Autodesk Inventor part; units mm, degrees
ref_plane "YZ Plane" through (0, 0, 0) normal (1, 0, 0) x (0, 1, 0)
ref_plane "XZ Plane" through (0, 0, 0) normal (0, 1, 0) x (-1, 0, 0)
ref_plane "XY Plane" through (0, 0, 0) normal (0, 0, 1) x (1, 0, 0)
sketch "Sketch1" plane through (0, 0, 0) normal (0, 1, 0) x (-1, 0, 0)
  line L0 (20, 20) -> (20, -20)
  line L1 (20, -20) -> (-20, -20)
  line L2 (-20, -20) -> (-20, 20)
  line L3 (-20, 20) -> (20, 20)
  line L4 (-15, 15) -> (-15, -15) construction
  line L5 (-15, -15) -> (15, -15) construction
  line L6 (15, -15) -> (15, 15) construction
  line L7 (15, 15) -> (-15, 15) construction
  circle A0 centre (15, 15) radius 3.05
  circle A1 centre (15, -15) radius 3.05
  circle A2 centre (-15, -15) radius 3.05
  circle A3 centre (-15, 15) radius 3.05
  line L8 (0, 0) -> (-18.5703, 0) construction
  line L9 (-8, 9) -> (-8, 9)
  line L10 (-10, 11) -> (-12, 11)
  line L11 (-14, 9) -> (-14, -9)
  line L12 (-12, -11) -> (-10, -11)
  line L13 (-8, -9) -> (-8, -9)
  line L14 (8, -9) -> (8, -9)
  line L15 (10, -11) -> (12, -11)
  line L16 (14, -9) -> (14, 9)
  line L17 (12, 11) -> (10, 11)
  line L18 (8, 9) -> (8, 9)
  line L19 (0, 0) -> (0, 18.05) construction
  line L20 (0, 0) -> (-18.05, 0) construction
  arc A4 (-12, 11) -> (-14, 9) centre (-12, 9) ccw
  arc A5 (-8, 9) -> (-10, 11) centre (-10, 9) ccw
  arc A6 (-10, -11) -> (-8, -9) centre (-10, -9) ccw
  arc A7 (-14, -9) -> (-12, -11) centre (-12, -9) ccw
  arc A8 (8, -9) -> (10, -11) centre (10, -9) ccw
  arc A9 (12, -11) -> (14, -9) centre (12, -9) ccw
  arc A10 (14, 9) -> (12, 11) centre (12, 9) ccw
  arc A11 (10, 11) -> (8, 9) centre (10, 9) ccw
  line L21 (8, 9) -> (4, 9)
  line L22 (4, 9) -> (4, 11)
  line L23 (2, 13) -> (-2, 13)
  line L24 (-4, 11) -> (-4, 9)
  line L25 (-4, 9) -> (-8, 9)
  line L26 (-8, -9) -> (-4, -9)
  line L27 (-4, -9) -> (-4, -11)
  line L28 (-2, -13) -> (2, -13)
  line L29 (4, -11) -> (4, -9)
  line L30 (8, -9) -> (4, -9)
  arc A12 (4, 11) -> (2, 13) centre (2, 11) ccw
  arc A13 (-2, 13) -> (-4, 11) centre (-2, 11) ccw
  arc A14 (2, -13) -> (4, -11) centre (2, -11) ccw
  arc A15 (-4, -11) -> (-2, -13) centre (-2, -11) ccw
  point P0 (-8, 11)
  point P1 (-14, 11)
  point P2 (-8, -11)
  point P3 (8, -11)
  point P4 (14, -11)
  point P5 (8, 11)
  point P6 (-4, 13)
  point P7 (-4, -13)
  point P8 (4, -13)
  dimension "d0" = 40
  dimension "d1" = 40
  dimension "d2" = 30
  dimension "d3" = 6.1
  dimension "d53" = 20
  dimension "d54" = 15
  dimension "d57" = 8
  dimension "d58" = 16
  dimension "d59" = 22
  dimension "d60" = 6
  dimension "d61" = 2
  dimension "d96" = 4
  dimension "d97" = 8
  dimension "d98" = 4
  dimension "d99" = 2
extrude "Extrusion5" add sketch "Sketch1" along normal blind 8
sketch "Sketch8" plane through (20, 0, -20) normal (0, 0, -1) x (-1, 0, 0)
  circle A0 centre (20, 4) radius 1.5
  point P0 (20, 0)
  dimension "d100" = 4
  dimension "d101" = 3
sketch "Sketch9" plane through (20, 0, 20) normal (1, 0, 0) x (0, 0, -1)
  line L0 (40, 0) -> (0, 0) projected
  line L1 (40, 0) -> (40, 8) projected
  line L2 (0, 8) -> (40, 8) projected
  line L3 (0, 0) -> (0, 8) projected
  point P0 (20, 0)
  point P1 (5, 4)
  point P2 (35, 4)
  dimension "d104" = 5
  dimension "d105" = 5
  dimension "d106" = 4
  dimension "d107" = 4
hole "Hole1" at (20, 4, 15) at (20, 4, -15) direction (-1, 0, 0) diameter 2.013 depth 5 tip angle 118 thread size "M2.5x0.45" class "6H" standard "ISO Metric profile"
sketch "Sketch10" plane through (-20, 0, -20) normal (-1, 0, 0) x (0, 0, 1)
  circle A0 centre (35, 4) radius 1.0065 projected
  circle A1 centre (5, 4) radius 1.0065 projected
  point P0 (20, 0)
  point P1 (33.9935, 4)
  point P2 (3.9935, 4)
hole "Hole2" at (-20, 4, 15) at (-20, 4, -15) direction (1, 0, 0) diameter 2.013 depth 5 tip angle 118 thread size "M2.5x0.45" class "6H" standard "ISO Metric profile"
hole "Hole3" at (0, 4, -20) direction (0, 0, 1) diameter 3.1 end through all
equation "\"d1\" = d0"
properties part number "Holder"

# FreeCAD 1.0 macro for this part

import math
import FreeCAD as App
import Part
import Sketcher

V = App.Vector


def add_polygon(sketch, points):
    """Adds a closed chain of lines whose ends are joined by coincident constraints."""
    first, n = sketch.GeometryCount, len(points)
    for a, b in zip(points, points[1:] + points[:1]):
        sketch.addGeometry(Part.LineSegment(App.Vector(*a, 0), App.Vector(*b, 0)), False)
    for i in range(n):
        sketch.addConstraint(Sketcher.Constraint("Coincident", first + i, 2, first + (i + 1) % n, 1))

doc = App.newDocument("Part")
body = doc.addObject("PartDesign::Body", "Body")

# Sketch on XZ plane
sketch1 = body.newObject("Sketcher::SketchObject", "Sketch")
sketch1.AttachmentSupport = (doc.getObject("XZ_Plane"), [""])
sketch1.MapMode = "FlatFace"
add_polygon(sketch1, [(-20, -20), (-20, 20), (20, 20), (20, -20)])  # lines 0-3
sketch1.addGeometry(Part.Circle(V(15, -15, 0), V(0, 0, 1), 3), False)  # 4
sketch1.addGeometry(Part.Circle(V(-15, -15, 0), V(0, 0, 1), 3), False)  # 5
sketch1.addGeometry(Part.Circle(V(15, 15, 0), V(0, 0, 1), 3), False)  # 6
sketch1.addGeometry(Part.LineSegment(V(12, 11, 0), V(10, 11, 0)), False)  # 7
sketch1.addGeometry(Part.ArcOfCircle(Part.Circle(V(10, 9, 0), V(0, 0, 1), 2), math.radians(90), math.radians(180)), False)  # 8
sketch1.addGeometry(Part.LineSegment(V(8, 9, 0), V(4, 9, 0)), False)  # 9
sketch1.addGeometry(Part.LineSegment(V(4, 9, 0), V(4, 11, 0)), False)  # 10
sketch1.addGeometry(Part.ArcOfCircle(Part.Circle(V(2, 11, 0), V(0, 0, 1), 2), math.radians(0), math.radians(90)), False)  # 11
sketch1.addGeometry(Part.LineSegment(V(2, 13, 0), V(-2, 13, 0)), False)  # 12
sketch1.addGeometry(Part.ArcOfCircle(Part.Circle(V(-2, 11, 0), V(0, 0, 1), 2), math.radians(90), math.radians(180)), False)  # 13
sketch1.addGeometry(Part.LineSegment(V(-4, 11, 0), V(-4, 9, 0)), False)  # 14
sketch1.addGeometry(Part.LineSegment(V(-4, 9, 0), V(-8, 9, 0)), False)  # 15
sketch1.addGeometry(Part.ArcOfCircle(Part.Circle(V(-10, 9, 0), V(0, 0, 1), 2), math.radians(0), math.radians(90)), False)  # 16
sketch1.addGeometry(Part.LineSegment(V(-10, 11, 0), V(-12, 11, 0)), False)  # 17
sketch1.addGeometry(Part.ArcOfCircle(Part.Circle(V(-12, 9, 0), V(0, 0, 1), 2), math.radians(90), math.radians(180)), False)  # 18
sketch1.addGeometry(Part.LineSegment(V(-14, 9, 0), V(-14, -9, 0)), False)  # 19
sketch1.addGeometry(Part.ArcOfCircle(Part.Circle(V(-12, -9, 0), V(0, 0, 1), 2), math.radians(180), math.radians(270)), False)  # 20
sketch1.addGeometry(Part.LineSegment(V(-12, -11, 0), V(-10, -11, 0)), False)  # 21
sketch1.addGeometry(Part.ArcOfCircle(Part.Circle(V(-10, -9, 0), V(0, 0, 1), 2), math.radians(-90), math.radians(0)), False)  # 22
sketch1.addGeometry(Part.LineSegment(V(-8, -9, 0), V(-4, -9, 0)), False)  # 23
sketch1.addGeometry(Part.LineSegment(V(-4, -9, 0), V(-4, -11, 0)), False)  # 24
sketch1.addGeometry(Part.ArcOfCircle(Part.Circle(V(-2, -11, 0), V(0, 0, 1), 2), math.radians(180), math.radians(270)), False)  # 25
sketch1.addGeometry(Part.LineSegment(V(-2, -13, 0), V(2, -13, 0)), False)  # 26
sketch1.addGeometry(Part.ArcOfCircle(Part.Circle(V(2, -11, 0), V(0, 0, 1), 2), math.radians(-90), math.radians(0)), False)  # 27
sketch1.addGeometry(Part.LineSegment(V(4, -11, 0), V(4, -9, 0)), False)  # 28
sketch1.addGeometry(Part.LineSegment(V(4, -9, 0), V(8, -9, 0)), False)  # 29
sketch1.addGeometry(Part.ArcOfCircle(Part.Circle(V(10, -9, 0), V(0, 0, 1), 2), math.radians(180), math.radians(270)), False)  # 30
sketch1.addGeometry(Part.LineSegment(V(10, -11, 0), V(12, -11, 0)), False)  # 31
sketch1.addGeometry(Part.ArcOfCircle(Part.Circle(V(12, -9, 0), V(0, 0, 1), 2), math.radians(-90), math.radians(0)), False)  # 32
sketch1.addGeometry(Part.LineSegment(V(14, -9, 0), V(14, 9, 0)), False)  # 33
sketch1.addGeometry(Part.ArcOfCircle(Part.Circle(V(12, 9, 0), V(0, 0, 1), 2), math.radians(0), math.radians(90)), False)  # 34
sketch1.addGeometry(Part.Circle(V(-15, 15, 0), V(0, 0, 1), 3), False)  # 35
sketch1.addConstraint([
    Sketcher.Constraint("Tangent", 7, 2, 8, 1),
    Sketcher.Constraint("Coincident", 8, 2, 9, 1),
    Sketcher.Constraint("Coincident", 9, 2, 10, 1),
    Sketcher.Constraint("Tangent", 10, 2, 11, 1),
    Sketcher.Constraint("Tangent", 11, 2, 12, 1),
    Sketcher.Constraint("Tangent", 12, 2, 13, 1),
    Sketcher.Constraint("Tangent", 13, 2, 14, 1),
    Sketcher.Constraint("Coincident", 14, 2, 15, 1),
    Sketcher.Constraint("Coincident", 15, 2, 16, 1),
    Sketcher.Constraint("Tangent", 16, 2, 17, 1),
    Sketcher.Constraint("Tangent", 17, 2, 18, 1),
    Sketcher.Constraint("Tangent", 18, 2, 19, 1),
    Sketcher.Constraint("Tangent", 19, 2, 20, 1),
    Sketcher.Constraint("Tangent", 20, 2, 21, 1),
    Sketcher.Constraint("Tangent", 21, 2, 22, 1),
    Sketcher.Constraint("Coincident", 22, 2, 23, 1),
    Sketcher.Constraint("Coincident", 23, 2, 24, 1),
    Sketcher.Constraint("Tangent", 24, 2, 25, 1),
    Sketcher.Constraint("Tangent", 25, 2, 26, 1),
    Sketcher.Constraint("Tangent", 26, 2, 27, 1),
    Sketcher.Constraint("Tangent", 27, 2, 28, 1),
    Sketcher.Constraint("Coincident", 28, 2, 29, 1),
    Sketcher.Constraint("Coincident", 29, 2, 30, 1),
    Sketcher.Constraint("Tangent", 30, 2, 31, 1),
    Sketcher.Constraint("Tangent", 31, 2, 32, 1),
    Sketcher.Constraint("Tangent", 32, 2, 33, 1),
    Sketcher.Constraint("Tangent", 33, 2, 34, 1),
    Sketcher.Constraint("Tangent", 34, 2, 7, 1),
    Sketcher.Constraint("Vertical", 0),
    Sketcher.Constraint("Horizontal", 1),
    Sketcher.Constraint("Vertical", 2),
    Sketcher.Constraint("Horizontal", 3),
    Sketcher.Constraint("Horizontal", 7),
    Sketcher.Constraint("Horizontal", 9),
    Sketcher.Constraint("Vertical", 10),
    Sketcher.Constraint("Horizontal", 12),
    Sketcher.Constraint("Vertical", 14),
    Sketcher.Constraint("Horizontal", 15),
    Sketcher.Constraint("Horizontal", 17),
    Sketcher.Constraint("Vertical", 19),
    Sketcher.Constraint("Horizontal", 21),
    Sketcher.Constraint("Horizontal", 23),
    Sketcher.Constraint("Vertical", 24),
    Sketcher.Constraint("Horizontal", 26),
    Sketcher.Constraint("Vertical", 28),
    Sketcher.Constraint("Horizontal", 29),
    Sketcher.Constraint("Horizontal", 31),
    Sketcher.Constraint("Vertical", 33),
    Sketcher.Constraint("Equal", 4, 5),
    Sketcher.Constraint("Equal", 5, 6),
    Sketcher.Constraint("Equal", 8, 11),
    Sketcher.Constraint("Equal", 11, 13),
    Sketcher.Constraint("Equal", 13, 16),
    Sketcher.Constraint("Equal", 16, 18),
    Sketcher.Constraint("Equal", 18, 20),
    Sketcher.Constraint("Equal", 20, 22),
    Sketcher.Constraint("Equal", 22, 25),
    Sketcher.Constraint("Equal", 25, 27),
    Sketcher.Constraint("Equal", 27, 30),
    Sketcher.Constraint("Equal", 30, 32),
    Sketcher.Constraint("Equal", 32, 34),
    Sketcher.Constraint("Equal", 6, 35),
    Sketcher.Constraint("Symmetric", 5, 3, 6, 3, -1, 1),
    Sketcher.Constraint("Symmetric", 8, 3, 22, 3, -1, 1),
    Sketcher.Constraint("Symmetric", 11, 3, 25, 3, -1, 1),
    Sketcher.Constraint("Symmetric", 16, 3, 30, 3, -1, 1),
    Sketcher.Constraint("Symmetric", 4, 3, 35, 3, -1, 1),
    Sketcher.Constraint("Symmetric", 0, 2, 2, 2, -1, 1),
    Sketcher.Constraint("Symmetric", 14, 2, 28, 2, -1, 1),
    Sketcher.Constraint("Symmetric", 4, 3, 5, 3, -2),
    Sketcher.Constraint("Symmetric", 8, 3, 16, 3, -2),
    Sketcher.Constraint("Symmetric", 9, 2, 14, 2, -2),
    Sketcher.Constraint("Horizontal", 13, 3, 7, 2),
    Sketcher.Constraint("Horizontal", 34, 3, 8, 2),
    Sketcher.Constraint("Horizontal", 19, 2, 22, 2),
    Sketcher.Constraint("Equal", 9, 12),
    Sketcher.Constraint("Equal", 7, 17),
    Sketcher.Constraint("Equal", 3, 0),
    Sketcher.Constraint("Equal", 31, 10),
    Sketcher.Constraint("Radius", 8, 2.0),
    Sketcher.Constraint("Diameter", 4, 6.1),
    Sketcher.Constraint("DistanceX", 1, 1, 1, 2, 40.0),
    Sketcher.Constraint("DistanceX", 9, 2, 9, 1, 4.0),
    Sketcher.Constraint("DistanceX", -1, 1, 4, 3, 15.0),
    Sketcher.Constraint("DistanceY", 4, 3, -1, 1, 15.0),
    Sketcher.Constraint("DistanceY", 8, 3, 6, 3, 6.0),
])
pad1 = body.newObject("PartDesign::Pad", "Pad")
pad1.Profile = sketch1
pad1.Length = 8
pad1.Reversed = True

# Sketch on YZ plane
sketch2 = body.newObject("Sketcher::SketchObject", "Sketch001")
sketch2.AttachmentSupport = (doc.getObject("YZ_Plane"), [""])
sketch2.MapMode = "FlatFace"
sketch2.AttachmentOffset = App.Placement(V(0, 0, 20), App.Rotation())
sketch2.addGeometry([
    Part.Circle(V(4, 15, 0), V(0, 0, 1), 1),
    Part.Circle(V(4, -15, 0), V(0, 0, 1), 1),
], False)
sketch2.addConstraint([
    Sketcher.Constraint("Equal", 0, 1),
    Sketcher.Constraint("Symmetric", 0, 3, 1, 3, -1),
    Sketcher.Constraint("Diameter", 0, 2.013),
    Sketcher.Constraint("DistanceX", -1, 1, 0, 3, 4.0),
    Sketcher.Constraint("DistanceY", -1, 1, 0, 3, 15.0),
])
doc.recompute()
hole = body.newObject("PartDesign::Hole", "Hole")
hole.Profile = sketch2
hole.ThreadType = "None"
hole.Diameter = 2.013
hole.DepthType = "Dimension"
hole.Depth = 5
hole.DrillPoint = "Angled"
hole.DrillPointAngle = 118

# Sketch on YZ plane
sketch3 = body.newObject("Sketcher::SketchObject", "Sketch002")
sketch3.AttachmentSupport = (doc.getObject("YZ_Plane"), [""])
sketch3.MapMode = "FlatFace"
sketch3.AttachmentOffset = App.Placement(V(0, 0, -20), App.Rotation())
sketch3.addGeometry([
    Part.Circle(V(4, 15, 0), V(0, 0, 1), 1),
    Part.Circle(V(4, -15, 0), V(0, 0, 1), 1),
], False)
sketch3.addConstraint([
    Sketcher.Constraint("Equal", 0, 1),
    Sketcher.Constraint("Symmetric", 0, 3, 1, 3, -1),
    Sketcher.Constraint("Diameter", 0, 2.013),
    Sketcher.Constraint("DistanceX", -1, 1, 0, 3, 4.0),
    Sketcher.Constraint("DistanceY", -1, 1, 0, 3, 15.0),
])
doc.recompute()
hole2 = body.newObject("PartDesign::Hole", "Hole001")
hole2.Profile = sketch3
hole2.ThreadType = "None"
hole2.Diameter = 2.013
hole2.DepthType = "Dimension"
hole2.Depth = 5
hole2.DrillPoint = "Angled"
hole2.DrillPointAngle = 118
hole2.Reversed = True

# Sketch on XY plane
sketch4 = body.newObject("Sketcher::SketchObject", "Sketch003")
sketch4.AttachmentSupport = (doc.getObject("XY_Plane"), [""])
sketch4.MapMode = "FlatFace"
sketch4.AttachmentOffset = App.Placement(V(0, 0, -20), App.Rotation())
sketch4.addGeometry(Part.Circle(V(0, 4, 0), V(0, 0, 1), 1.6), False)
sketch4.addConstraint([
    Sketcher.Constraint("PointOnObject", 0, 3, -2),
    Sketcher.Constraint("Diameter", 0, 3.1),
    Sketcher.Constraint("DistanceY", -1, 1, 0, 3, 4.0),
])
doc.recompute()
hole3 = body.newObject("PartDesign::Hole", "Hole002")
hole3.Profile = sketch4
hole3.ThreadType = "None"
hole3.Diameter = 3.1
hole3.DepthType = "ThroughAll"
hole3.Reversed = True

doc.recompute()
